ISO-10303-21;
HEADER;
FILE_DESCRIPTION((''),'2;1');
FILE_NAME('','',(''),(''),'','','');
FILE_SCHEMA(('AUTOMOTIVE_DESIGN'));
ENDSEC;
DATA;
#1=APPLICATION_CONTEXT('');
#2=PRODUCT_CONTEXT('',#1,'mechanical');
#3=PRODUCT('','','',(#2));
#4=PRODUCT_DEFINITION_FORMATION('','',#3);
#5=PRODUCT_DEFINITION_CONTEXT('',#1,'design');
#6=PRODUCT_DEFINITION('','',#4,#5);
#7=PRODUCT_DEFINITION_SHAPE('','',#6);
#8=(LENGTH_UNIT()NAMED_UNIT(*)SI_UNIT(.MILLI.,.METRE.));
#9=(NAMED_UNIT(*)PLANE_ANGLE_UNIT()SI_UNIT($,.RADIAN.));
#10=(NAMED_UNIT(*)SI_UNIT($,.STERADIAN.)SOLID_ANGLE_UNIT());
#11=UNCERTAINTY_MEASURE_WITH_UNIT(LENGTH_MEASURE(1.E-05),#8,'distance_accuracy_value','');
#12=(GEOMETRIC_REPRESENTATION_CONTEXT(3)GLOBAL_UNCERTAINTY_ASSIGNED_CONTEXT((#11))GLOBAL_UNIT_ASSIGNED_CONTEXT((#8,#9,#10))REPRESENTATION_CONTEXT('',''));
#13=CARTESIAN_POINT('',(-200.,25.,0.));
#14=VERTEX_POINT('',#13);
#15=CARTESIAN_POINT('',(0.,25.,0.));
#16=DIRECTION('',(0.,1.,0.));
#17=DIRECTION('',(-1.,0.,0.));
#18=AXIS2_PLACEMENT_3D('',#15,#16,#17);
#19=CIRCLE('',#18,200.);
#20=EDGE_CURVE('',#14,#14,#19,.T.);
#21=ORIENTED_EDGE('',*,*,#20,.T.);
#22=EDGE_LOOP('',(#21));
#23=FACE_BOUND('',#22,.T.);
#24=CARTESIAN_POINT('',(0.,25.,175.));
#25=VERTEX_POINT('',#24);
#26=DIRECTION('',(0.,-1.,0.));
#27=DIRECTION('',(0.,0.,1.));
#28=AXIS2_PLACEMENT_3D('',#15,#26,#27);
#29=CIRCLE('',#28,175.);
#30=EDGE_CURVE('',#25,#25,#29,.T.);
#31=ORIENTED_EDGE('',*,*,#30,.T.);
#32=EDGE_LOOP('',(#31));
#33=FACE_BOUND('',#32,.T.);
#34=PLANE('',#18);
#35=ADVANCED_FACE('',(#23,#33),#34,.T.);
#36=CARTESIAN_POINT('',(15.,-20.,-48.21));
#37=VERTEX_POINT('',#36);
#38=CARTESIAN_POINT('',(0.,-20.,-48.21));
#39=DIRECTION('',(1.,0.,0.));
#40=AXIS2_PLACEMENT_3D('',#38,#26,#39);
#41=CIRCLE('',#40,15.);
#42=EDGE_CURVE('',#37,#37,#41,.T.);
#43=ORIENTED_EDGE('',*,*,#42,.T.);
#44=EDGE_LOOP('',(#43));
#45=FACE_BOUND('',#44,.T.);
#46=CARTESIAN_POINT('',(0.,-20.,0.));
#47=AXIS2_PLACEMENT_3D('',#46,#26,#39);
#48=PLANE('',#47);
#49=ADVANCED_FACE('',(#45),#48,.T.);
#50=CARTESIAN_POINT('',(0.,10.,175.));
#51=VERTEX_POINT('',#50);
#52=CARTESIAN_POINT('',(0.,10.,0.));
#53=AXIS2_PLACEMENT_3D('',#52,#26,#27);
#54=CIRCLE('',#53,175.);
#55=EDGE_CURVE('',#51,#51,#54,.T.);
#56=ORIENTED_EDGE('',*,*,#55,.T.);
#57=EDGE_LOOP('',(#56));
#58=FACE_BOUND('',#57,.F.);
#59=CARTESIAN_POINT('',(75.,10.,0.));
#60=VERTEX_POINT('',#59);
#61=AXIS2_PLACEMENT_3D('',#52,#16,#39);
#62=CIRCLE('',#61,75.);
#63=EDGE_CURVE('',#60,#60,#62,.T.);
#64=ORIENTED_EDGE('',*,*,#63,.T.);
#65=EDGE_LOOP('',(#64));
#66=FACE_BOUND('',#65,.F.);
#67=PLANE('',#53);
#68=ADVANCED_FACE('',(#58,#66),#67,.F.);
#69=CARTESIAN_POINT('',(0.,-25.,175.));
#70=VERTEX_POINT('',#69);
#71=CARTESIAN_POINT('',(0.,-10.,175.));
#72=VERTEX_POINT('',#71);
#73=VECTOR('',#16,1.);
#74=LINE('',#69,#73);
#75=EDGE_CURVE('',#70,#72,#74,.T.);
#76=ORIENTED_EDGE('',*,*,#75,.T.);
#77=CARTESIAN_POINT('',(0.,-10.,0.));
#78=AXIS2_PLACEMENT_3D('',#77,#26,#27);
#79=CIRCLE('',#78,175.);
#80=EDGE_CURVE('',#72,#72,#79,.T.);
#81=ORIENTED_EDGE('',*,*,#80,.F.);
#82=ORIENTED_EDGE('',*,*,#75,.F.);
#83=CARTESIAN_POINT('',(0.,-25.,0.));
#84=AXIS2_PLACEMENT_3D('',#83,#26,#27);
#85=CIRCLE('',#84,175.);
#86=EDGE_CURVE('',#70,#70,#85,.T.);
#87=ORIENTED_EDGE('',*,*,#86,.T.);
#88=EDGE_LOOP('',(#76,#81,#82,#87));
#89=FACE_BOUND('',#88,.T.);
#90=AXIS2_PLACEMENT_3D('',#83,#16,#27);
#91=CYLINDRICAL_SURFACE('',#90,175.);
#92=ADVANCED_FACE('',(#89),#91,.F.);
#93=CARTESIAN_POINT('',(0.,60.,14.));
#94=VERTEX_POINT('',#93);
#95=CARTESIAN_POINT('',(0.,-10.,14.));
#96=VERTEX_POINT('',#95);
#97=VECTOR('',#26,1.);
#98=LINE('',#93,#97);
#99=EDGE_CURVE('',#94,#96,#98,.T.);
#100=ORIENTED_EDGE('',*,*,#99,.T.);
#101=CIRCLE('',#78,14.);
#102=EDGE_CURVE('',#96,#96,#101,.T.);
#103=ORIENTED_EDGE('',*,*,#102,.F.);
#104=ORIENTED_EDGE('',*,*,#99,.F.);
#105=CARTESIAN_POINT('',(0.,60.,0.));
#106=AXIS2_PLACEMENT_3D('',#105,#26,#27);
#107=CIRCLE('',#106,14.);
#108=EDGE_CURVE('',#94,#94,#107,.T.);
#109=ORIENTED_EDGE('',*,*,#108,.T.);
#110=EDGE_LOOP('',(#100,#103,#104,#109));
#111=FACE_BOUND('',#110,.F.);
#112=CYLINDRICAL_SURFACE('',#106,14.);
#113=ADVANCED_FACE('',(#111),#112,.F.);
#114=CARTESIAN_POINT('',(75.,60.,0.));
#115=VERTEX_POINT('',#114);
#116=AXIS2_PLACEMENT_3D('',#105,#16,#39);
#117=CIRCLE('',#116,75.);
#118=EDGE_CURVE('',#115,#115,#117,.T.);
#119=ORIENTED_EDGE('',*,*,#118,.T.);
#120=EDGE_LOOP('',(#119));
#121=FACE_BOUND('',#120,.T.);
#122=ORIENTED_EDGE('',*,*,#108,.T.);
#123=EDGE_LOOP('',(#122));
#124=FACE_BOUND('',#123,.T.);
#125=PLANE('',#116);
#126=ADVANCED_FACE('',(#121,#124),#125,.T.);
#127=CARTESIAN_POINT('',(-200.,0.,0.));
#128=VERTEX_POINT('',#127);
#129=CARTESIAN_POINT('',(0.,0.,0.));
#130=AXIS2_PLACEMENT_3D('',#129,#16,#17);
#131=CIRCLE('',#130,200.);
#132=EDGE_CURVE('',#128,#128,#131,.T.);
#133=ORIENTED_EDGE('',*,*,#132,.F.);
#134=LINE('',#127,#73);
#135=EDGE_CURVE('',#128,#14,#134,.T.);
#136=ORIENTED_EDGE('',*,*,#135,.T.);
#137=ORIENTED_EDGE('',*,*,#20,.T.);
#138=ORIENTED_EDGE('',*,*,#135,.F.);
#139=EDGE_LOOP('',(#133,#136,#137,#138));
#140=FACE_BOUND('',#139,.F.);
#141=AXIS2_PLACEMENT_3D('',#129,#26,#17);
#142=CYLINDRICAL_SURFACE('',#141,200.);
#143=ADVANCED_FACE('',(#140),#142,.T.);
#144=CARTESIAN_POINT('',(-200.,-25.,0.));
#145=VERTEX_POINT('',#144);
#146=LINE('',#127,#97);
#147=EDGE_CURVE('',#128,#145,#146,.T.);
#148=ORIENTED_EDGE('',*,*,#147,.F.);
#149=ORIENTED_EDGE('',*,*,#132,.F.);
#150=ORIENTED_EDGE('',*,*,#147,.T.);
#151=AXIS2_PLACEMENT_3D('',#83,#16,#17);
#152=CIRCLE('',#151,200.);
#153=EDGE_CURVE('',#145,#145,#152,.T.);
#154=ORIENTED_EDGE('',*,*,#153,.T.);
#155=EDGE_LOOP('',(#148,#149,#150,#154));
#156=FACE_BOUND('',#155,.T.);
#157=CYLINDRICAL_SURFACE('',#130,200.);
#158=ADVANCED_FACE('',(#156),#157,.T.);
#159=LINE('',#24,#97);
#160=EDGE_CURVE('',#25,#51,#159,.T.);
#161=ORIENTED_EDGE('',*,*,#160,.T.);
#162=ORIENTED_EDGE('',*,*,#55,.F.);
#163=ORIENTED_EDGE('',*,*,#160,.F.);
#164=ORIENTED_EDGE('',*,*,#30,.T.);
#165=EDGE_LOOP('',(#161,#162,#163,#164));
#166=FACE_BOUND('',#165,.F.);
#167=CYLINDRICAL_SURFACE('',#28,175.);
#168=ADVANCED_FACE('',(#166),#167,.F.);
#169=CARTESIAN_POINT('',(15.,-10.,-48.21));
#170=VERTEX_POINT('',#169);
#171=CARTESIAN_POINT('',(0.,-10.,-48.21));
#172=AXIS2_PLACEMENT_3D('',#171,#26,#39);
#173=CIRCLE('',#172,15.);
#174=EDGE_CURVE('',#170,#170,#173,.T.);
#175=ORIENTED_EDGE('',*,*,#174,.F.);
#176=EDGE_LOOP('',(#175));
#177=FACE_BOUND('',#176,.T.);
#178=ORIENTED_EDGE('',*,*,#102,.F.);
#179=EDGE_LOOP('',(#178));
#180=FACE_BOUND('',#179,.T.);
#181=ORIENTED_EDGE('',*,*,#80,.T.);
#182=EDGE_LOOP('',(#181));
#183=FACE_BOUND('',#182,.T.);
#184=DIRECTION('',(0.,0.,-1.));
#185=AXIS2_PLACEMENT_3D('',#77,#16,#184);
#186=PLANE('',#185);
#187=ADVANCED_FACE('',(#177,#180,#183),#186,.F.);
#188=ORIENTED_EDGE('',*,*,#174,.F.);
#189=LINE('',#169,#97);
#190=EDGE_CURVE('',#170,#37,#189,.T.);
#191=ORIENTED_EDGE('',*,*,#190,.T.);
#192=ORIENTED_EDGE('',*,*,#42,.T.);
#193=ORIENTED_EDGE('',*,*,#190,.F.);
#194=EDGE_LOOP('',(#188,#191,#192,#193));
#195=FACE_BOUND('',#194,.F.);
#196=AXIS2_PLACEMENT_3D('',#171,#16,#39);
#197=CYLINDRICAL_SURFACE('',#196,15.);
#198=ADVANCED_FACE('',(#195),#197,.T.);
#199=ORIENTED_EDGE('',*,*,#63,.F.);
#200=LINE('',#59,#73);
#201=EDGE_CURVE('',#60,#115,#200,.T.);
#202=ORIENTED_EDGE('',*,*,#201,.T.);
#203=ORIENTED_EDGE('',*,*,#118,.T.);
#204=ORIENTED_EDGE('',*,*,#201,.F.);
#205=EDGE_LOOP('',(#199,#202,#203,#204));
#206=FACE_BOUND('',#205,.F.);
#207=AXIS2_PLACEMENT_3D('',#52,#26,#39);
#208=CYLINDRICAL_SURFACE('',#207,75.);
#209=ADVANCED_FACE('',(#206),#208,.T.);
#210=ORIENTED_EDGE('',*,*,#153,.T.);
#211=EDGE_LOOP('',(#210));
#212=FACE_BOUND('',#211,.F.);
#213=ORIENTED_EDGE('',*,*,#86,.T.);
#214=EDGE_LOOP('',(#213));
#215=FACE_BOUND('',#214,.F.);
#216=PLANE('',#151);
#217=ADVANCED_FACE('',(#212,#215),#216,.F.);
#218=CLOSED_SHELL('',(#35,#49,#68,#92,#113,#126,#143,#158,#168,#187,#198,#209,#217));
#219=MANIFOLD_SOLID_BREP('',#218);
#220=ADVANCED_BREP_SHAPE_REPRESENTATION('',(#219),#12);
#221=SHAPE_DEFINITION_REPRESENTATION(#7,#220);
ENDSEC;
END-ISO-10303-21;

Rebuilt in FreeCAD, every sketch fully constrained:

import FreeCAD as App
import Part
import Sketcher
from FreeCAD import Vector
Q = App.Units.Quantity

doc = App.newDocument("Part")
params = doc.addObject("Spreadsheet::Sheet", "Params")
for row, (alias, value) in enumerate([
    ("sketch1_diameter", "400 mm"),
    ("pad1_length", "50 mm"),
    ("sketch2_diameter", "350 mm"),
    ("hole_diameter", "350 mm"),
    ("hole_depth", "15 mm"),
    ("sketch3_diameter", "150 mm"),
    ("pad2_length", "50 mm"),
    ("sketch4_diameter", "28 mm"),
    ("hole2_diameter", "28 mm"),
    ("hole2_depth", "70 mm"),
    ("sketch5_diameter", "30 mm"),
    ("pad3_length", "10 mm"),
], start=1):
    params.set(f"A{row}", alias)
    params.set(f"B{row}", "=" + value)
    params.setAlias(f"B{row}", alias)

body = doc.addObject("PartDesign::Body", "Body")

sketch1 = body.newObject("Sketcher::SketchObject", "Sketch")
sketch1.AttachmentSupport = (doc.getObject("XZ_Plane"), [""])
sketch1.MapMode = "FlatFace"
sketch1.addGeometry(Part.Circle(Vector(0, 0, 0), Vector(0, 0, 1), 200), False)
sketch1.addConstraint([
    Sketcher.Constraint("Coincident", 0, 3, -1, 1),
    Sketcher.Constraint("Diameter", 0, Q("400 mm")),
])
sketch1.setExpression("Constraints[1]", "Params.sketch1_diameter")
pad1 = body.newObject("PartDesign::Pad", "Pad")
pad1.Profile = sketch1
pad1.setExpression("Length", "Params.pad1_length")
pad1.Midplane = True

sketch2 = body.newObject("Sketcher::SketchObject", "Sketch001")
sketch2.AttachmentSupport = (doc.getObject("XZ_Plane"), [""])
sketch2.MapMode = "FlatFace"
sketch2.AttachmentOffset = App.Placement(Vector(0, 0, -25), App.Rotation())
sketch2.addGeometry(Part.Circle(Vector(0, 0, 0), Vector(0, 0, 1), 175), False)
sketch2.addConstraint([
    Sketcher.Constraint("Coincident", 0, 3, -1, 1),
    Sketcher.Constraint("Diameter", 0, Q("350 mm")),
])
sketch2.setExpression("Constraints[1]", "Params.sketch2_diameter")
doc.recompute()
hole = body.newObject("PartDesign::Hole", "Hole")
hole.Profile = sketch2
hole.ThreadType = "None"
hole.setExpression("Diameter", "Params.hole_diameter")
hole.DepthType = "Dimension"
hole.setExpression("Depth", "Params.hole_depth")
hole.DrillPoint = "Flat"
hole.Reversed = True
doc.recompute()

mirrored = body.newObject("PartDesign::Mirrored", "Mirrored")
mirrored.Originals = [hole]
mirrored.MirrorPlane = (doc.getObject("XZ_Plane"), [""])
body.Tip = mirrored

sketch3 = body.newObject("Sketcher::SketchObject", "Sketch002")
sketch3.AttachmentSupport = (doc.getObject("XZ_Plane"), [""])
sketch3.MapMode = "FlatFace"
sketch3.AttachmentOffset = App.Placement(Vector(0, 0, -10), App.Rotation())
sketch3.addGeometry(Part.Circle(Vector(0, 0, 0), Vector(0, 0, 1), 75), False)
sketch3.addConstraint([
    Sketcher.Constraint("Coincident", 0, 3, -1, 1),
    Sketcher.Constraint("Diameter", 0, Q("150 mm")),
])
sketch3.setExpression("Constraints[1]", "Params.sketch3_diameter")
pad2 = body.newObject("PartDesign::Pad", "Pad001")
pad2.Profile = sketch3
pad2.setExpression("Length", "Params.pad2_length")
pad2.Reversed = True

sketch4 = body.newObject("Sketcher::SketchObject", "Sketch003")
sketch4.AttachmentSupport = (doc.getObject("XZ_Plane"), [""])
sketch4.MapMode = "FlatFace"
sketch4.AttachmentOffset = App.Placement(Vector(0, 0, -60), App.Rotation())
sketch4.addGeometry(Part.Circle(Vector(0, 0, 0), Vector(0, 0, 1), 14), False)
sketch4.addConstraint([
    Sketcher.Constraint("Coincident", 0, 3, -1, 1),
    Sketcher.Constraint("Diameter", 0, Q("28 mm")),
])
sketch4.setExpression("Constraints[1]", "Params.sketch4_diameter")
doc.recompute()
hole2 = body.newObject("PartDesign::Hole", "Hole001")
hole2.Profile = sketch4
hole2.ThreadType = "None"
hole2.setExpression("Diameter", "Params.hole2_diameter")
hole2.DepthType = "Dimension"
hole2.setExpression("Depth", "Params.hole2_depth")
hole2.DrillPoint = "Flat"
hole2.Reversed = True

sketch5 = body.newObject("Sketcher::SketchObject", "Sketch004")
sketch5.AttachmentSupport = (doc.getObject("XZ_Plane"), [""])
sketch5.MapMode = "FlatFace"
sketch5.AttachmentOffset = App.Placement(Vector(0, 0, 10), App.Rotation())
sketch5.addGeometry(Part.Circle(Vector(0, -48, 0), Vector(0, 0, 1), 15), False)
sketch5.addConstraint([
    Sketcher.Constraint("PointOnObject", 0, 3, -2),
    Sketcher.Constraint("Diameter", 0, Q("30 mm")),
    Sketcher.Constraint("DistanceY", 0, 3, -1, 1, Q("48.21 mm")),
])
sketch5.setExpression("Constraints[1]", "Params.sketch5_diameter")
pad3 = body.newObject("PartDesign::Pad", "Pad002")
pad3.Profile = sketch5
pad3.setExpression("Length", "Params.pad3_length")

doc.recompute()
